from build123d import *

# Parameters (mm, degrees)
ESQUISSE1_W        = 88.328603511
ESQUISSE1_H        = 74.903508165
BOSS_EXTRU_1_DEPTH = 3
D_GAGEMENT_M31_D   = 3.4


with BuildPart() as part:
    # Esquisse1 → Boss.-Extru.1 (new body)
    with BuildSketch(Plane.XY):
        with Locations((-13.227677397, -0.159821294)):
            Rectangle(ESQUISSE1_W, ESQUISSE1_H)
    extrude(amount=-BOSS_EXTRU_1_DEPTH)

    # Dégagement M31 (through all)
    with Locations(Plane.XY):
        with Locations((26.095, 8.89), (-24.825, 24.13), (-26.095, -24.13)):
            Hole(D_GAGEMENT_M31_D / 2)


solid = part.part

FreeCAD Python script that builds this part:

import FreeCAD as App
import Part
import Sketcher
from FreeCAD import Vector
Q = App.Units.Quantity

doc = App.newDocument("Part")
body = doc.addObject("PartDesign::Body", "Body")

# Sketch on XY plane
sketch1 = body.newObject("Sketcher::SketchObject", "Sketch")
sketch1.AttachmentSupport = (doc.getObject("XY_Plane"), [""])
sketch1.MapMode = "FlatFace"
sketch1.addGeometry(Part.LineSegment(Vector(-57.391979, 37.291933, 0), Vector(-57.391979, -37.611575, 0)), False)
sketch1.addGeometry(Part.LineSegment(Vector(-57.391979, -37.611575, 0), Vector(30.936624, -37.611575, 0)), False)
sketch1.addGeometry(Part.LineSegment(Vector(30.936624, -37.611575, 0), Vector(30.936624, 37.291933, 0)), False)
sketch1.addGeometry(Part.LineSegment(Vector(30.936624, 37.291933, 0), Vector(-57.391979, 37.291933, 0)), False)
sketch1.addConstraint(Sketcher.Constraint("Coincident", 0, 2, 1, 1))
sketch1.addConstraint(Sketcher.Constraint("Coincident", 1, 2, 2, 1))
sketch1.addConstraint(Sketcher.Constraint("Coincident", 2, 2, 3, 1))
sketch1.addConstraint(Sketcher.Constraint("Coincident", 3, 2, 0, 1))
sketch1.addConstraint(Sketcher.Constraint("Vertical", 0))
sketch1.addConstraint(Sketcher.Constraint("Horizontal", 1))
sketch1.addConstraint(Sketcher.Constraint("Vertical", 2))
sketch1.addConstraint(Sketcher.Constraint("Horizontal", 3))
sketch1.addConstraint(Sketcher.Constraint("DistanceY", 0, 2, 0, 1, Q("74.903508 mm")))
sketch1.addConstraint(Sketcher.Constraint("DistanceX", 1, 1, 1, 2, Q("88.328604 mm")))
sketch1.addConstraint(Sketcher.Constraint("DistanceX", 0, 2, -1, 1, Q("57.391979 mm")))
sketch1.addConstraint(Sketcher.Constraint("DistanceY", 0, 2, -1, 1, Q("37.611575 mm")))
pad1 = body.newObject("PartDesign::Pad", "Pad")
pad1.Profile = sketch1
pad1.Length = 3
pad1.Reversed = True

# Sketch on XY plane
sketch2 = body.newObject("Sketcher::SketchObject", "Sketch001")
sketch2.AttachmentSupport = (doc.getObject("XY_Plane"), [""])
sketch2.MapMode = "FlatFace"
sketch2.addGeometry(Part.Circle(Vector(26.095, 8.89, 0), Vector(0, 0, 1), 1.7), False)
sketch2.addGeometry(Part.Circle(Vector(-24.825, 24.13, 0), Vector(0, 0, 1), 1.7), False)
sketch2.addGeometry(Part.Circle(Vector(-26.095, -24.13, 0), Vector(0, 0, 1), 1.7), False)
sketch2.addConstraint(Sketcher.Constraint("Equal", 0, 1))
sketch2.addConstraint(Sketcher.Constraint("Equal", 1, 2))
sketch2.addConstraint(Sketcher.Constraint("Diameter", 0, Q("3.4 mm")))
sketch2.addConstraint(Sketcher.Constraint("DistanceY", -1, 1, 0, 3, Q("8.89 mm")))
sketch2.addConstraint(Sketcher.Constraint("DistanceY", -1, 1, 1, 3, Q("24.13 mm")))
sketch2.addConstraint(Sketcher.Constraint("DistanceY", 2, 3, -1, 1, Q("24.13 mm")))
sketch2.addConstraint(Sketcher.Constraint("DistanceX", 1, 3, 0, 3, Q("50.92 mm")))
sketch2.addConstraint(Sketcher.Constraint("DistanceX", 2, 3, 1, 3, Q("1.27 mm")))
sketch2.addConstraint(Sketcher.Constraint("DistanceX", -1, 1, 0, 3, Q("26.095 mm")))
doc.recompute()
hole = body.newObject("PartDesign::Hole", "Hole")
hole.Profile = sketch2
hole.ThreadType = "None"
hole.Diameter = 3.4
hole.DepthType = "ThroughAll"

doc.recompute()
